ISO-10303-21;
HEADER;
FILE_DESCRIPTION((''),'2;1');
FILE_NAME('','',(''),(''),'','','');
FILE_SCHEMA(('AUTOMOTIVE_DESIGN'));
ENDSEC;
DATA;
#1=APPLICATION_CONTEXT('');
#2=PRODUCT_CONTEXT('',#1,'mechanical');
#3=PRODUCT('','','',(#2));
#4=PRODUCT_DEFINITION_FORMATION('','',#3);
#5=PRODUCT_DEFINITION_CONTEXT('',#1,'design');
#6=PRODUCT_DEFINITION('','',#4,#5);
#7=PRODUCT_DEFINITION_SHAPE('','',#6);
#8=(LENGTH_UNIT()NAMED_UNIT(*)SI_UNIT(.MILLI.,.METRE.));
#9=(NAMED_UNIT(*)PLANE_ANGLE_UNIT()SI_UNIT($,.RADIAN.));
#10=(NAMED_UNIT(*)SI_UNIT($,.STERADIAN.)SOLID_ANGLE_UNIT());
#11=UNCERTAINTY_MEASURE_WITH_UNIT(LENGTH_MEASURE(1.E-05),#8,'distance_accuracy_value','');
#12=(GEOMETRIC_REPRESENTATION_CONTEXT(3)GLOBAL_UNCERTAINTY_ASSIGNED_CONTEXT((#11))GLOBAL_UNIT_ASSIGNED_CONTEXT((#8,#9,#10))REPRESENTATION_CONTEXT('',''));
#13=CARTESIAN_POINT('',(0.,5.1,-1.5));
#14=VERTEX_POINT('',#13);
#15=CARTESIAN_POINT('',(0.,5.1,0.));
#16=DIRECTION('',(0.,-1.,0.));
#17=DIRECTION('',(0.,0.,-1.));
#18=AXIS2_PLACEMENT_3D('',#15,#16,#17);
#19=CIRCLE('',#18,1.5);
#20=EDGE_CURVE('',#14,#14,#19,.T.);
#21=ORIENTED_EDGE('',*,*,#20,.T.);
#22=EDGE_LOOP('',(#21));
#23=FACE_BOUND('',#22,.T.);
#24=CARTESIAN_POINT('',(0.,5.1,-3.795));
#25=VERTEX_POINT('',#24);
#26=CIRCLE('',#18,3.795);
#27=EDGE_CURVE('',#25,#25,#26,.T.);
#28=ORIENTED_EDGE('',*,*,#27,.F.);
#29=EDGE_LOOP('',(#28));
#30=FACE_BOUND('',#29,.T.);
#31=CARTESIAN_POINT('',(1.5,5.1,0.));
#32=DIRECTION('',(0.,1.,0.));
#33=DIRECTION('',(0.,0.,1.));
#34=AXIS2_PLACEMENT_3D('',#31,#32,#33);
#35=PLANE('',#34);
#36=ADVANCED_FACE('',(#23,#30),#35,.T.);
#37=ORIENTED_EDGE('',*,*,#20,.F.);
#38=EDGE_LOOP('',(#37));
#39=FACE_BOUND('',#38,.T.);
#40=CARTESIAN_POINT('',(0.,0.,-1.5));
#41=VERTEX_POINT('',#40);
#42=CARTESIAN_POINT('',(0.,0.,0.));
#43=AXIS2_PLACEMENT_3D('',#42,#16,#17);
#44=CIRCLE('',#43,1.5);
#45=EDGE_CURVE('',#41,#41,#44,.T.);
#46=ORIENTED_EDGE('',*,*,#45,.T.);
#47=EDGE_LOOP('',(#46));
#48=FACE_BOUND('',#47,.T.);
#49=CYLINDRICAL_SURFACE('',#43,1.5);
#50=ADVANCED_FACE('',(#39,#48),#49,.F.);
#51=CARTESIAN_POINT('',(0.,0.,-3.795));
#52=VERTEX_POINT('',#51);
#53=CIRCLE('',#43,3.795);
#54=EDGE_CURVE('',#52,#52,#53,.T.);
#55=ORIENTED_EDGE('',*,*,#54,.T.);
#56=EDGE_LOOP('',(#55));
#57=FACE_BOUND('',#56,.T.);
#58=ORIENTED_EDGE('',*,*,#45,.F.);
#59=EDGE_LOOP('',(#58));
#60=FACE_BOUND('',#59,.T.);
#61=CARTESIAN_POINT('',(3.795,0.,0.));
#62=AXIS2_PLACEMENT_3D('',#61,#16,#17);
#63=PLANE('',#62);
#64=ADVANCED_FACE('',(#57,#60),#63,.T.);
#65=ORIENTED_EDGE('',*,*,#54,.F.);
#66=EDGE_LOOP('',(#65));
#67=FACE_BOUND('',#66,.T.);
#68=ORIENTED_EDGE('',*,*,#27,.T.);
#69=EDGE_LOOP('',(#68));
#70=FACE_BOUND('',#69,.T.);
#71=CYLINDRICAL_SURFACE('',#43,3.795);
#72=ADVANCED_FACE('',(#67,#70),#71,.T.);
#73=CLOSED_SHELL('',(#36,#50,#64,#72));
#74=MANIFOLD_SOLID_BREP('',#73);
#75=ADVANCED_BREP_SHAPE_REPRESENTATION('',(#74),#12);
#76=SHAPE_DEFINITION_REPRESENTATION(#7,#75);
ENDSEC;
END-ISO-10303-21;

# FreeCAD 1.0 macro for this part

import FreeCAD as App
import Part
import Sketcher

V = App.Vector
Q = App.Units.Quantity


def add_polygon(sketch, points):
    """Adds a closed chain of lines whose ends are joined by coincident constraints."""
    first, n = sketch.GeometryCount, len(points)
    for a, b in zip(points, points[1:] + points[:1]):
        sketch.addGeometry(Part.LineSegment(App.Vector(*a, 0), App.Vector(*b, 0)), False)
    for i in range(n):
        sketch.addConstraint(Sketcher.Constraint("Coincident", first + i, 2, first + (i + 1) % n, 1))

doc = App.newDocument("Part")
body = doc.addObject("PartDesign::Body", "Body")

# Sketch on XY plane
sketch1 = body.newObject("Sketcher::SketchObject", "Sketch")
sketch1.AttachmentSupport = (doc.getObject("XY_Plane"), [""])
sketch1.MapMode = "FlatFace"
add_polygon(sketch1, [(1.5, 5.1), (1.5, 0), (3.8, 0), (3.8, 5.1)])  # lines 0-3
sketch1.addConstraint([
    Sketcher.Constraint("Vertical", 0),
    Sketcher.Constraint("Horizontal", 1),
    Sketcher.Constraint("Vertical", 2),
    Sketcher.Constraint("Horizontal", 3),
    Sketcher.Constraint("PointOnObject", 0, 2, -1),
    Sketcher.Constraint("DistanceY", 0, 2, 0, 1, Q("5.1 mm")),
    Sketcher.Constraint("DistanceX", -1, 1, 0, 2, Q("1.5 mm")),
    Sketcher.Constraint("DistanceX", 1, 1, 1, 2, Q("2.295 mm")),
])
revolution = body.newObject("PartDesign::Revolution", "Revolution")
revolution.Profile = sketch1
revolution.ReferenceAxis = (sketch1, ["V_Axis"])
revolution.Angle = 360

doc.recompute()
